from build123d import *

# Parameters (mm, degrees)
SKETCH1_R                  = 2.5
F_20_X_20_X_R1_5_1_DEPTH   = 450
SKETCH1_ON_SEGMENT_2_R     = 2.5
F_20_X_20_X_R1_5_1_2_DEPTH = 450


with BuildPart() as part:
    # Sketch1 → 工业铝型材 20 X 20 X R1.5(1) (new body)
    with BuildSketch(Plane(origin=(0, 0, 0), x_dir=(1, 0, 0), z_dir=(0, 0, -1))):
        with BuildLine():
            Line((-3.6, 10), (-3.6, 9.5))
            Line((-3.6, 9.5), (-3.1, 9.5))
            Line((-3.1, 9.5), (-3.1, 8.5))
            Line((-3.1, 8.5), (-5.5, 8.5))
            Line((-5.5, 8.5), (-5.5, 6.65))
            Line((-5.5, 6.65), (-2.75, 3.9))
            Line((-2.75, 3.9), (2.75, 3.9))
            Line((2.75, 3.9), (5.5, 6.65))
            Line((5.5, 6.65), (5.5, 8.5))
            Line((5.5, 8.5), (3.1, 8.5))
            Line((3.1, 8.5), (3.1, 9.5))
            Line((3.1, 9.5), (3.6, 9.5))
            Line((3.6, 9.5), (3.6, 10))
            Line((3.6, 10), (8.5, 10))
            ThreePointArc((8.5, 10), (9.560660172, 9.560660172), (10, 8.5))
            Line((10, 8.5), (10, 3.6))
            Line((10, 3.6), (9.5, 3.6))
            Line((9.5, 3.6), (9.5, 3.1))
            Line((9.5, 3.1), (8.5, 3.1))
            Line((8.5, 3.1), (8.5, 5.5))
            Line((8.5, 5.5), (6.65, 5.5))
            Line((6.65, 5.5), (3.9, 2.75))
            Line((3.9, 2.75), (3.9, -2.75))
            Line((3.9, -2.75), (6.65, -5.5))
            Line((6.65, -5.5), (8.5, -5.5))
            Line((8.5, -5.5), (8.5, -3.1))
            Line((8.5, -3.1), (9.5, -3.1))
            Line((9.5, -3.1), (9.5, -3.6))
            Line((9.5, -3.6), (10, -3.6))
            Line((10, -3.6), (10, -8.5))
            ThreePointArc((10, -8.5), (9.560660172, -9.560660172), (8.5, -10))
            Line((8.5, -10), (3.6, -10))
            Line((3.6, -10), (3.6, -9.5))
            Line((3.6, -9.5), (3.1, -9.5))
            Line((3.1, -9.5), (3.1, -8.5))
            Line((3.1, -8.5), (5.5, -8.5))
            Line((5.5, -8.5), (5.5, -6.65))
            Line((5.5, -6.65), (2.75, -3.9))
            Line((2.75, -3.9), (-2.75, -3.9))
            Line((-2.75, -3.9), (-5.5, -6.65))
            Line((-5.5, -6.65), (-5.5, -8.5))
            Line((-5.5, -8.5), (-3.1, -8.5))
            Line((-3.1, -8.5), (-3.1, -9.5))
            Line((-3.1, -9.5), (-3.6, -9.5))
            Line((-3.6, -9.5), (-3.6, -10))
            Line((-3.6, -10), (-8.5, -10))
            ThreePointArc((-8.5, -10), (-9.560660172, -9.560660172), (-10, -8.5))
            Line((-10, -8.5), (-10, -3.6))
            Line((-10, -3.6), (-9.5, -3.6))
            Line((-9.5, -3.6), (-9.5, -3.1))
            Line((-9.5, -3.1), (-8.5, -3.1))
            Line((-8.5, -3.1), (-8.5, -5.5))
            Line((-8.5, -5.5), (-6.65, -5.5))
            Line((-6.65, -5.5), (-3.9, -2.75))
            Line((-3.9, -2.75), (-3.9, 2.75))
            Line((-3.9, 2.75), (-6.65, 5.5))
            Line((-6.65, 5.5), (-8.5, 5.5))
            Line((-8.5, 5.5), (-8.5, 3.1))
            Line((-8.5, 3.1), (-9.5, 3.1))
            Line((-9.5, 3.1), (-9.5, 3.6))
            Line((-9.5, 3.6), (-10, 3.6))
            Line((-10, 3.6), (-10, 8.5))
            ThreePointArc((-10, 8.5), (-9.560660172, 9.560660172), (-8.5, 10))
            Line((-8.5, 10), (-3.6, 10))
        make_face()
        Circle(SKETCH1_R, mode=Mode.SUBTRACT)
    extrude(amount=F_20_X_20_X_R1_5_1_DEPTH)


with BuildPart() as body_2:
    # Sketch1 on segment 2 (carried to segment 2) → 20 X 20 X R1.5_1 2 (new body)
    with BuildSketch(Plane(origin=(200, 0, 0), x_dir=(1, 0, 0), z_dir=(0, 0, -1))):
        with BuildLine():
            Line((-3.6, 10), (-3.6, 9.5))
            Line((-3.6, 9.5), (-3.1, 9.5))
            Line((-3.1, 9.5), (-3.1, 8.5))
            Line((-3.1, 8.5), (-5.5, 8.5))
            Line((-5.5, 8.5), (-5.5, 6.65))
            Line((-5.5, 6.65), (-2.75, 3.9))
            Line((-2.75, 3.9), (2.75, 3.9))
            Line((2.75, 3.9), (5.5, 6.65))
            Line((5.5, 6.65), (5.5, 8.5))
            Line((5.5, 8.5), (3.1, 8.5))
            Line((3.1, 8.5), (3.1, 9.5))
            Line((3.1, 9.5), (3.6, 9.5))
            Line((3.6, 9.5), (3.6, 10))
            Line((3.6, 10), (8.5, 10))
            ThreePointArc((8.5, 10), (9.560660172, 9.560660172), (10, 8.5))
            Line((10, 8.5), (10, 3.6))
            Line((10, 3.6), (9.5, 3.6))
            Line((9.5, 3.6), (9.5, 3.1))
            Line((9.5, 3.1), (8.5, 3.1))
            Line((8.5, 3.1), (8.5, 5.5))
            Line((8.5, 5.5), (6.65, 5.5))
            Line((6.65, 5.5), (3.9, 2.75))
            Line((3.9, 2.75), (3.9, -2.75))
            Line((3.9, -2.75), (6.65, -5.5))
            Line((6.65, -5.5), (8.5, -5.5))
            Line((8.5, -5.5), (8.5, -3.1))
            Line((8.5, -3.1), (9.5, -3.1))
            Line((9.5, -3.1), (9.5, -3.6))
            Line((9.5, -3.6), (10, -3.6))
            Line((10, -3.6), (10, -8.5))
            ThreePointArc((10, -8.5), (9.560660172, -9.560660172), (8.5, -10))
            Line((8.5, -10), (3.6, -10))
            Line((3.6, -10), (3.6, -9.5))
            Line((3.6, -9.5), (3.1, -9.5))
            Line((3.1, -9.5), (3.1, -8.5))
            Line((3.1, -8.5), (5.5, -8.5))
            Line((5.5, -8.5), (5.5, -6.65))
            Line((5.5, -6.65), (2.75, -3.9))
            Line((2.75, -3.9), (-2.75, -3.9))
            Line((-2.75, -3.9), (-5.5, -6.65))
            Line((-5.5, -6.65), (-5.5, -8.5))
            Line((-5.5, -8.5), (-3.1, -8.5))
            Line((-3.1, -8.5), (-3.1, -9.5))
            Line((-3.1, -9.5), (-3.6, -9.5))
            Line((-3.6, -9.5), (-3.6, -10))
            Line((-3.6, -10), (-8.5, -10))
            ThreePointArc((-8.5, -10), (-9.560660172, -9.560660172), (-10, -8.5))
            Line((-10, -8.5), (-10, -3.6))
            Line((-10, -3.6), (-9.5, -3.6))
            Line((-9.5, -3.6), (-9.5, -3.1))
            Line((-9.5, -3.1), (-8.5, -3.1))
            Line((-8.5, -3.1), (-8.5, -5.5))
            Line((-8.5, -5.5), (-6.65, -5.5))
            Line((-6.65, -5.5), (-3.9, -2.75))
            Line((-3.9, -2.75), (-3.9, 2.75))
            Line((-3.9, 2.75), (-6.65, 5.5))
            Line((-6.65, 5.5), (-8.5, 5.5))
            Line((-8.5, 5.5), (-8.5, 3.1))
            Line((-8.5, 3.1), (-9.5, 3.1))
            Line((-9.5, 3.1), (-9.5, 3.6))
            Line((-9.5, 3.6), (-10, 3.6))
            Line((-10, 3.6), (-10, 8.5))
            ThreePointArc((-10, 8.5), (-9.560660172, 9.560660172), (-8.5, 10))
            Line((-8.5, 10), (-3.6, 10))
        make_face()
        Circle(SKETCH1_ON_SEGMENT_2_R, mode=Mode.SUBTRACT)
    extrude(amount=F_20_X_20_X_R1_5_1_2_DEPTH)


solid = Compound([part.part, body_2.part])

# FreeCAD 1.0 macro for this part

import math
import FreeCAD as App
import Part
import Sketcher

doc = App.newDocument("Part")
params = doc.addObject("Spreadsheet::Sheet", "Params")
for row, (alias, value) in enumerate([
    ("sketch1_diameter", "5 mm"),
    ("sketch1_radius", "1.5 mm"),
    ("sketch1_width", "1 mm"),
    ("sketch1_width2", "4.9 mm"),
    ("sketch1_width3", "2.4 mm"),
    ("pad1_length", "450 mm"),
    ("sketch2_diameter", "5 mm"),
    ("sketch2_radius", "1.5 mm"),
    ("sketch2_width", "1 mm"),
    ("sketch2_width2", "4.9 mm"),
    ("sketch2_width3", "2.4 mm"),
    ("pad2_length", "450 mm"),
], start=1):
    params.set(f"A{row}", alias)
    params.set(f"B{row}", "=" + value)
    params.setAlias(f"B{row}", alias)

body = doc.addObject("PartDesign::Body", "Body")

# Sketch on XY plane
sketch1 = body.newObject("Sketcher::SketchObject", "Sketch")
sketch1.AttachmentSupport = (doc.getObject("XY_Plane"), [""])
sketch1.MapMode = "FlatFace"
sketch1.addGeometry(Part.LineSegment(App.Vector(-3.6, -9.5, 0), App.Vector(-3.6, -10, 0)), False)
sketch1.addGeometry(Part.LineSegment(App.Vector(-3.6, -10, 0), App.Vector(-8.5, -10, 0)), False)
sketch1.addGeometry(Part.ArcOfCircle(Part.Circle(App.Vector(-8.5, -8.5, 0), App.Vector(0, 0, 1), 1.5), math.radians(180), math.radians(270)), False)
sketch1.addGeometry(Part.LineSegment(App.Vector(-10, -8.5, 0), App.Vector(-10, -3.6, 0)), False)
sketch1.addGeometry(Part.LineSegment(App.Vector(-10, -3.6, 0), App.Vector(-9.5, -3.6, 0)), False)
sketch1.addGeometry(Part.LineSegment(App.Vector(-9.5, -3.6, 0), App.Vector(-9.5, -3.1, 0)), False)
sketch1.addGeometry(Part.LineSegment(App.Vector(-9.5, -3.1, 0), App.Vector(-8.5, -3.1, 0)), False)
sketch1.addGeometry(Part.LineSegment(App.Vector(-8.5, -3.1, 0), App.Vector(-8.5, -5.5, 0)), False)
sketch1.addGeometry(Part.LineSegment(App.Vector(-8.5, -5.5, 0), App.Vector(-6.65, -5.5, 0)), False)
sketch1.addGeometry(Part.LineSegment(App.Vector(-6.65, -5.5, 0), App.Vector(-3.9, -2.75, 0)), False)
sketch1.addGeometry(Part.LineSegment(App.Vector(-3.9, -2.75, 0), App.Vector(-3.9, 2.75, 0)), False)
sketch1.addGeometry(Part.LineSegment(App.Vector(-3.9, 2.75, 0), App.Vector(-6.65, 5.5, 0)), False)
sketch1.addGeometry(Part.LineSegment(App.Vector(-6.65, 5.5, 0), App.Vector(-8.5, 5.5, 0)), False)
sketch1.addGeometry(Part.LineSegment(App.Vector(-8.5, 5.5, 0), App.Vector(-8.5, 3.1, 0)), False)
sketch1.addGeometry(Part.LineSegment(App.Vector(-8.5, 3.1, 0), App.Vector(-9.5, 3.1, 0)), False)
sketch1.addGeometry(Part.LineSegment(App.Vector(-9.5, 3.1, 0), App.Vector(-9.5, 3.6, 0)), False)
sketch1.addGeometry(Part.LineSegment(App.Vector(-9.5, 3.6, 0), App.Vector(-10, 3.6, 0)), False)
sketch1.addGeometry(Part.LineSegment(App.Vector(-10, 3.6, 0), App.Vector(-10, 8.5, 0)), False)
sketch1.addGeometry(Part.ArcOfCircle(Part.Circle(App.Vector(-8.5, 8.5, 0), App.Vector(0, 0, 1), 1.5), math.radians(90), math.radians(180)), False)
sketch1.addGeometry(Part.LineSegment(App.Vector(-8.5, 10, 0), App.Vector(-3.6, 10, 0)), False)
sketch1.addGeometry(Part.LineSegment(App.Vector(-3.6, 10, 0), App.Vector(-3.6, 9.5, 0)), False)
sketch1.addGeometry(Part.LineSegment(App.Vector(-3.6, 9.5, 0), App.Vector(-3.1, 9.5, 0)), False)
sketch1.addGeometry(Part.LineSegment(App.Vector(-3.1, 9.5, 0), App.Vector(-3.1, 8.5, 0)), False)
sketch1.addGeometry(Part.LineSegment(App.Vector(-3.1, 8.5, 0), App.Vector(-5.5, 8.5, 0)), False)
sketch1.addGeometry(Part.LineSegment(App.Vector(-5.5, 8.5, 0), App.Vector(-5.5, 6.65, 0)), False)
sketch1.addGeometry(Part.LineSegment(App.Vector(-5.5, 6.65, 0), App.Vector(-2.75, 3.9, 0)), False)
sketch1.addGeometry(Part.LineSegment(App.Vector(-2.75, 3.9, 0), App.Vector(2.75, 3.9, 0)), False)
sketch1.addGeometry(Part.LineSegment(App.Vector(2.75, 3.9, 0), App.Vector(5.5, 6.65, 0)), False)
sketch1.addGeometry(Part.LineSegment(App.Vector(5.5, 6.65, 0), App.Vector(5.5, 8.5, 0)), False)
sketch1.addGeometry(Part.LineSegment(App.Vector(5.5, 8.5, 0), App.Vector(3.1, 8.5, 0)), False)
sketch1.addGeometry(Part.LineSegment(App.Vector(3.1, 8.5, 0), App.Vector(3.1, 9.5, 0)), False)
sketch1.addGeometry(Part.LineSegment(App.Vector(3.1, 9.5, 0), App.Vector(3.6, 9.5, 0)), False)
sketch1.addGeometry(Part.LineSegment(App.Vector(3.6, 9.5, 0), App.Vector(3.6, 10, 0)), False)
sketch1.addGeometry(Part.LineSegment(App.Vector(3.6, 10, 0), App.Vector(8.5, 10, 0)), False)
sketch1.addGeometry(Part.ArcOfCircle(Part.Circle(App.Vector(8.5, 8.5, 0), App.Vector(0, 0, 1), 1.5), math.radians(0), math.radians(90)), False)
sketch1.addGeometry(Part.LineSegment(App.Vector(10, 8.5, 0), App.Vector(10, 3.6, 0)), False)
sketch1.addGeometry(Part.LineSegment(App.Vector(10, 3.6, 0), App.Vector(9.5, 3.6, 0)), False)
sketch1.addGeometry(Part.LineSegment(App.Vector(9.5, 3.6, 0), App.Vector(9.5, 3.1, 0)), False)
sketch1.addGeometry(Part.LineSegment(App.Vector(9.5, 3.1, 0), App.Vector(8.5, 3.1, 0)), False)
sketch1.addGeometry(Part.LineSegment(App.Vector(8.5, 3.1, 0), App.Vector(8.5, 5.5, 0)), False)
sketch1.addGeometry(Part.LineSegment(App.Vector(8.5, 5.5, 0), App.Vector(6.65, 5.5, 0)), False)
sketch1.addGeometry(Part.LineSegment(App.Vector(6.65, 5.5, 0), App.Vector(3.9, 2.75, 0)), False)
sketch1.addGeometry(Part.LineSegment(App.Vector(3.9, 2.75, 0), App.Vector(3.9, -2.75, 0)), False)
sketch1.addGeometry(Part.LineSegment(App.Vector(3.9, -2.75, 0), App.Vector(6.65, -5.5, 0)), False)
sketch1.addGeometry(Part.LineSegment(App.Vector(6.65, -5.5, 0), App.Vector(8.5, -5.5, 0)), False)
sketch1.addGeometry(Part.LineSegment(App.Vector(8.5, -5.5, 0), App.Vector(8.5, -3.1, 0)), False)
sketch1.addGeometry(Part.LineSegment(App.Vector(8.5, -3.1, 0), App.Vector(9.5, -3.1, 0)), False)
sketch1.addGeometry(Part.LineSegment(App.Vector(9.5, -3.1, 0), App.Vector(9.5, -3.6, 0)), False)
sketch1.addGeometry(Part.LineSegment(App.Vector(9.5, -3.6, 0), App.Vector(10, -3.6, 0)), False)
sketch1.addGeometry(Part.LineSegment(App.Vector(10, -3.6, 0), App.Vector(10, -8.5, 0)), False)
sketch1.addGeometry(Part.ArcOfCircle(Part.Circle(App.Vector(8.5, -8.5, 0), App.Vector(0, 0, 1), 1.5), math.radians(-90), math.radians(0)), False)
sketch1.addGeometry(Part.LineSegment(App.Vector(8.5, -10, 0), App.Vector(3.6, -10, 0)), False)
sketch1.addGeometry(Part.LineSegment(App.Vector(3.6, -10, 0), App.Vector(3.6, -9.5, 0)), False)
sketch1.addGeometry(Part.LineSegment(App.Vector(3.6, -9.5, 0), App.Vector(3.1, -9.5, 0)), False)
sketch1.addGeometry(Part.LineSegment(App.Vector(3.1, -9.5, 0), App.Vector(3.1, -8.5, 0)), False)
sketch1.addGeometry(Part.LineSegment(App.Vector(3.1, -8.5, 0), App.Vector(5.5, -8.5, 0)), False)
sketch1.addGeometry(Part.LineSegment(App.Vector(5.5, -8.5, 0), App.Vector(5.5, -6.65, 0)), False)
sketch1.addGeometry(Part.LineSegment(App.Vector(5.5, -6.65, 0), App.Vector(2.75, -3.9, 0)), False)
sketch1.addGeometry(Part.LineSegment(App.Vector(2.75, -3.9, 0), App.Vector(-2.75, -3.9, 0)), False)
sketch1.addGeometry(Part.LineSegment(App.Vector(-2.75, -3.9, 0), App.Vector(-5.5, -6.65, 0)), False)
sketch1.addGeometry(Part.LineSegment(App.Vector(-5.5, -6.65, 0), App.Vector(-5.5, -8.5, 0)), False)
sketch1.addGeometry(Part.LineSegment(App.Vector(-5.5, -8.5, 0), App.Vector(-3.1, -8.5, 0)), False)
sketch1.addGeometry(Part.LineSegment(App.Vector(-3.1, -8.5, 0), App.Vector(-3.1, -9.5, 0)), False)
sketch1.addGeometry(Part.LineSegment(App.Vector(-3.1, -9.5, 0), App.Vector(-3.6, -9.5, 0)), False)
sketch1.addGeometry(Part.Circle(App.Vector(0, 0, 0), App.Vector(0, 0, 1), 2.5), False)
sketch1.addConstraint(Sketcher.Constraint("Coincident", 0, 2, 1, 1))
sketch1.addConstraint(Sketcher.Constraint("Tangent", 1, 2, 2, 2))
sketch1.addConstraint(Sketcher.Constraint("Tangent", 2, 1, 3, 1))
sketch1.addConstraint(Sketcher.Constraint("Coincident", 3, 2, 4, 1))
sketch1.addConstraint(Sketcher.Constraint("Coincident", 4, 2, 5, 1))
sketch1.addConstraint(Sketcher.Constraint("Coincident", 5, 2, 6, 1))
sketch1.addConstraint(Sketcher.Constraint("Coincident", 6, 2, 7, 1))
sketch1.addConstraint(Sketcher.Constraint("Coincident", 7, 2, 8, 1))
sketch1.addConstraint(Sketcher.Constraint("Coincident", 8, 2, 9, 1))
sketch1.addConstraint(Sketcher.Constraint("Coincident", 9, 2, 10, 1))
sketch1.addConstraint(Sketcher.Constraint("Coincident", 10, 2, 11, 1))
sketch1.addConstraint(Sketcher.Constraint("Coincident", 11, 2, 12, 1))
sketch1.addConstraint(Sketcher.Constraint("Coincident", 12, 2, 13, 1))
sketch1.addConstraint(Sketcher.Constraint("Coincident", 13, 2, 14, 1))
sketch1.addConstraint(Sketcher.Constraint("Coincident", 14, 2, 15, 1))
sketch1.addConstraint(Sketcher.Constraint("Coincident", 15, 2, 16, 1))
sketch1.addConstraint(Sketcher.Constraint("Coincident", 16, 2, 17, 1))
sketch1.addConstraint(Sketcher.Constraint("Tangent", 17, 2, 18, 2))
sketch1.addConstraint(Sketcher.Constraint("Tangent", 18, 1, 19, 1))
sketch1.addConstraint(Sketcher.Constraint("Coincident", 19, 2, 20, 1))
sketch1.addConstraint(Sketcher.Constraint("Coincident", 20, 2, 21, 1))
sketch1.addConstraint(Sketcher.Constraint("Coincident", 21, 2, 22, 1))
sketch1.addConstraint(Sketcher.Constraint("Coincident", 22, 2, 23, 1))
sketch1.addConstraint(Sketcher.Constraint("Coincident", 23, 2, 24, 1))
sketch1.addConstraint(Sketcher.Constraint("Coincident", 24, 2, 25, 1))
sketch1.addConstraint(Sketcher.Constraint("Coincident", 25, 2, 26, 1))
sketch1.addConstraint(Sketcher.Constraint("Coincident", 26, 2, 27, 1))
sketch1.addConstraint(Sketcher.Constraint("Coincident", 27, 2, 28, 1))
sketch1.addConstraint(Sketcher.Constraint("Coincident", 28, 2, 29, 1))
sketch1.addConstraint(Sketcher.Constraint("Coincident", 29, 2, 30, 1))
sketch1.addConstraint(Sketcher.Constraint("Coincident", 30, 2, 31, 1))
sketch1.addConstraint(Sketcher.Constraint("Coincident", 31, 2, 32, 1))
sketch1.addConstraint(Sketcher.Constraint("Coincident", 32, 2, 33, 1))
sketch1.addConstraint(Sketcher.Constraint("Tangent", 33, 2, 34, 2))
sketch1.addConstraint(Sketcher.Constraint("Tangent", 34, 1, 35, 1))
sketch1.addConstraint(Sketcher.Constraint("Coincident", 35, 2, 36, 1))
sketch1.addConstraint(Sketcher.Constraint("Coincident", 36, 2, 37, 1))
sketch1.addConstraint(Sketcher.Constraint("Coincident", 37, 2, 38, 1))
sketch1.addConstraint(Sketcher.Constraint("Coincident", 38, 2, 39, 1))
sketch1.addConstraint(Sketcher.Constraint("Coincident", 39, 2, 40, 1))
sketch1.addConstraint(Sketcher.Constraint("Coincident", 40, 2, 41, 1))
sketch1.addConstraint(Sketcher.Constraint("Coincident", 41, 2, 42, 1))
sketch1.addConstraint(Sketcher.Constraint("Coincident", 42, 2, 43, 1))
sketch1.addConstraint(Sketcher.Constraint("Coincident", 43, 2, 44, 1))
sketch1.addConstraint(Sketcher.Constraint("Coincident", 44, 2, 45, 1))
sketch1.addConstraint(Sketcher.Constraint("Coincident", 45, 2, 46, 1))
sketch1.addConstraint(Sketcher.Constraint("Coincident", 46, 2, 47, 1))
sketch1.addConstraint(Sketcher.Constraint("Coincident", 47, 2, 48, 1))
sketch1.addConstraint(Sketcher.Constraint("Coincident", 48, 2, 49, 1))
sketch1.addConstraint(Sketcher.Constraint("Tangent", 49, 2, 50, 2))
sketch1.addConstraint(Sketcher.Constraint("Tangent", 50, 1, 51, 1))
sketch1.addConstraint(Sketcher.Constraint("Coincident", 51, 2, 52, 1))
sketch1.addConstraint(Sketcher.Constraint("Coincident", 52, 2, 53, 1))
sketch1.addConstraint(Sketcher.Constraint("Coincident", 53, 2, 54, 1))
sketch1.addConstraint(Sketcher.Constraint("Coincident", 54, 2, 55, 1))
sketch1.addConstraint(Sketcher.Constraint("Coincident", 55, 2, 56, 1))
sketch1.addConstraint(Sketcher.Constraint("Coincident", 56, 2, 57, 1))
sketch1.addConstraint(Sketcher.Constraint("Coincident", 57, 2, 58, 1))
sketch1.addConstraint(Sketcher.Constraint("Coincident", 58, 2, 59, 1))
sketch1.addConstraint(Sketcher.Constraint("Coincident", 59, 2, 60, 1))
sketch1.addConstraint(Sketcher.Constraint("Coincident", 60, 2, 61, 1))
sketch1.addConstraint(Sketcher.Constraint("Coincident", 61, 2, 62, 1))
sketch1.addConstraint(Sketcher.Constraint("Coincident", 62, 2, 63, 1))
sketch1.addConstraint(Sketcher.Constraint("Coincident", 63, 2, 0, 1))
sketch1.addConstraint(Sketcher.Constraint("Vertical", 0))
sketch1.addConstraint(Sketcher.Constraint("Horizontal", 1))
sketch1.addConstraint(Sketcher.Constraint("Vertical", 3))
sketch1.addConstraint(Sketcher.Constraint("Horizontal", 4))
sketch1.addConstraint(Sketcher.Constraint("Vertical", 5))
sketch1.addConstraint(Sketcher.Constraint("Horizontal", 6))
sketch1.addConstraint(Sketcher.Constraint("Vertical", 7))
sketch1.addConstraint(Sketcher.Constraint("Horizontal", 8))
sketch1.addConstraint(Sketcher.Constraint("Vertical", 10))
sketch1.addConstraint(Sketcher.Constraint("Horizontal", 12))
sketch1.addConstraint(Sketcher.Constraint("Vertical", 13))
sketch1.addConstraint(Sketcher.Constraint("Horizontal", 14))
sketch1.addConstraint(Sketcher.Constraint("Vertical", 15))
sketch1.addConstraint(Sketcher.Constraint("Horizontal", 16))
sketch1.addConstraint(Sketcher.Constraint("Vertical", 17))
sketch1.addConstraint(Sketcher.Constraint("Horizontal", 19))
sketch1.addConstraint(Sketcher.Constraint("Vertical", 20))
sketch1.addConstraint(Sketcher.Constraint("Horizontal", 21))
sketch1.addConstraint(Sketcher.Constraint("Vertical", 22))
sketch1.addConstraint(Sketcher.Constraint("Horizontal", 23))
sketch1.addConstraint(Sketcher.Constraint("Vertical", 24))
sketch1.addConstraint(Sketcher.Constraint("Horizontal", 26))
sketch1.addConstraint(Sketcher.Constraint("Vertical", 28))
sketch1.addConstraint(Sketcher.Constraint("Horizontal", 29))
sketch1.addConstraint(Sketcher.Constraint("Vertical", 30))
sketch1.addConstraint(Sketcher.Constraint("Horizontal", 31))
sketch1.addConstraint(Sketcher.Constraint("Vertical", 32))
sketch1.addConstraint(Sketcher.Constraint("Horizontal", 33))
sketch1.addConstraint(Sketcher.Constraint("Vertical", 35))
sketch1.addConstraint(Sketcher.Constraint("Horizontal", 36))
sketch1.addConstraint(Sketcher.Constraint("Vertical", 37))
sketch1.addConstraint(Sketcher.Constraint("Horizontal", 38))
sketch1.addConstraint(Sketcher.Constraint("Vertical", 39))
sketch1.addConstraint(Sketcher.Constraint("Horizontal", 40))
sketch1.addConstraint(Sketcher.Constraint("Vertical", 42))
sketch1.addConstraint(Sketcher.Constraint("Horizontal", 44))
sketch1.addConstraint(Sketcher.Constraint("Vertical", 45))
sketch1.addConstraint(Sketcher.Constraint("Horizontal", 46))
sketch1.addConstraint(Sketcher.Constraint("Vertical", 47))
sketch1.addConstraint(Sketcher.Constraint("Horizontal", 48))
sketch1.addConstraint(Sketcher.Constraint("Vertical", 49))
sketch1.addConstraint(Sketcher.Constraint("Horizontal", 51))
sketch1.addConstraint(Sketcher.Constraint("Vertical", 52))
sketch1.addConstraint(Sketcher.Constraint("Horizontal", 53))
sketch1.addConstraint(Sketcher.Constraint("Vertical", 54))
sketch1.addConstraint(Sketcher.Constraint("Horizontal", 55))
sketch1.addConstraint(Sketcher.Constraint("Vertical", 56))
sketch1.addConstraint(Sketcher.Constraint("Horizontal", 58))
sketch1.addConstraint(Sketcher.Constraint("Vertical", 60))
sketch1.addConstraint(Sketcher.Constraint("Horizontal", 61))
sketch1.addConstraint(Sketcher.Constraint("Vertical", 62))
sketch1.addConstraint(Sketcher.Constraint("Horizontal", 63))
sketch1.addConstraint(Sketcher.Constraint("Coincident", 64, 3, -1, 1))
sketch1.addConstraint(Sketcher.Constraint("Equal", 2, 18))
sketch1.addConstraint(Sketcher.Constraint("Equal", 18, 34))
sketch1.addConstraint(Sketcher.Constraint("Equal", 34, 50))
sketch1.addConstraint(Sketcher.Constraint("Symmetric", 2, 3, 34, 3, -1, 1))
sketch1.addConstraint(Sketcher.Constraint("Symmetric", 18, 3, 50, 3, -1, 1))
sketch1.addConstraint(Sketcher.Constraint("Symmetric", 4, 2, 36, 2, -1, 1))
sketch1.addConstraint(Sketcher.Constraint("Symmetric", 6, 2, 38, 2, -1, 1))
sketch1.addConstraint(Sketcher.Constraint("Symmetric", 8, 2, 40, 2, -1, 1))
sketch1.addConstraint(Sketcher.Constraint("Symmetric", 9, 2, 41, 2, -1, 1))
sketch1.addConstraint(Sketcher.Constraint("Symmetric", 11, 2, 43, 2, -1, 1))
sketch1.addConstraint(Sketcher.Constraint("Symmetric", 13, 2, 45, 2, -1, 1))
sketch1.addConstraint(Sketcher.Constraint("Symmetric", 15, 2, 47, 2, -1, 1))
sketch1.addConstraint(Sketcher.Constraint("Symmetric", 20, 2, 52, 2, -1, 1))
sketch1.addConstraint(Sketcher.Constraint("Symmetric", 22, 2, 54, 2, -1, 1))
sketch1.addConstraint(Sketcher.Constraint("Symmetric", 24, 2, 56, 2, -1, 1))
sketch1.addConstraint(Sketcher.Constraint("Symmetric", 25, 2, 57, 2, -1, 1))
sketch1.addConstraint(Sketcher.Constraint("Symmetric", 27, 2, 59, 2, -1, 1))
sketch1.addConstraint(Sketcher.Constraint("Symmetric", 29, 2, 61, 2, -1, 1))
sketch1.addConstraint(Sketcher.Constraint("Symmetric", 31, 2, 63, 2, -1, 1))
sketch1.addConstraint(Sketcher.Constraint("Symmetric", 18, 3, 34, 3, -2))
sketch1.addConstraint(Sketcher.Constraint("Symmetric", 24, 2, 27, 2, -2))
sketch1.addConstraint(Sketcher.Constraint("Symmetric", 22, 2, 29, 2, -2))
sketch1.addConstraint(Sketcher.Constraint("Symmetric", 20, 2, 31, 2, -2))
sketch1.addConstraint(Sketcher.Constraint("Symmetric", 15, 2, 36, 2, -2))
sketch1.addConstraint(Sketcher.Constraint("Symmetric", 13, 2, 38, 2, -2))
sketch1.addConstraint(Sketcher.Constraint("Symmetric", 11, 2, 40, 2, -2))
sketch1.addConstraint(Sketcher.Constraint("Perpendicular", 9, 11))
sketch1.addConstraint(Sketcher.Constraint("Parallel", 11, 25))
sketch1.addConstraint(Sketcher.Constraint("Perpendicular", 25, 27))
sketch1.addConstraint(Sketcher.Constraint("Perpendicular", 41, 43))
sketch1.addConstraint(Sketcher.Constraint("Perpendicular", 57, 59))
sketch1.addConstraint(Sketcher.Constraint("Horizontal", 17, 2, 22, 2))
sketch1.addConstraint(Sketcher.Constraint("Horizontal", 10, 2, 41, 2))
sketch1.addConstraint(Sketcher.Constraint("Vertical", 1, 2, 6, 2))
sketch1.addConstraint(Sketcher.Constraint("Equal", 16, 21))
sketch1.addConstraint(Sketcher.Constraint("Equal", 63, 0))
sketch1.addConstraint(Sketcher.Constraint("Equal", 51, 3))
sketch1.addConstraint(Sketcher.Constraint("Equal", 0, 5))
sketch1.addConstraint(Sketcher.Constraint("Equal", 61, 7))
sketch1.addConstraint(Sketcher.Constraint("Equal", 58, 10))
sketch1.addConstraint(Sketcher.Constraint("Equal", 44, 24))
sketch1.addConstraint(Sketcher.Constraint("Equal", 11, 25))
sketch1.addConstraint(Sketcher.Constraint("Diameter", 64, 5.0))
sketch1.addConstraint(Sketcher.Constraint("Radius", 2, 1.5))
sketch1.addConstraint(Sketcher.Constraint("DistanceX", 6, 1, 6, 2, 1.0))
sketch1.addConstraint(Sketcher.Constraint("DistanceX", 1, 2, 1, 1, 4.9))
sketch1.addConstraint(Sketcher.Constraint("DistanceX", 23, 2, 23, 1, 2.4))
sketch1.addConstraint(Sketcher.Constraint("DistanceX", 26, 1, 26, 2, 5.5))
sketch1.addConstraint(Sketcher.Constraint("DistanceY", 0, 2, -1, 1, 10.0))
sketch1.addConstraint(Sketcher.Constraint("DistanceX", 8, 1, 8, 2, 1.85))
sketch1.setExpression("Constraints[159]", "Params.sketch1_diameter")
sketch1.setExpression("Constraints[160]", "Params.sketch1_radius")
sketch1.setExpression("Constraints[161]", "Params.sketch1_width")
sketch1.setExpression("Constraints[162]", "Params.sketch1_width2")
sketch1.setExpression("Constraints[163]", "Params.sketch1_width3")
pad1 = body.newObject("PartDesign::Pad", "Pad")
pad1.Profile = sketch1
pad1.setExpression("Length", "Params.pad1_length")
pad1.Reversed = True
body2 = doc.addObject("PartDesign::Body", "Body001")

# Sketch on XY plane
sketch2 = body2.newObject("Sketcher::SketchObject", "Sketch001")
sketch2.AttachmentSupport = (doc.getObject("XY_Plane001"), [""])
sketch2.MapMode = "FlatFace"
sketch2.addGeometry(Part.LineSegment(App.Vector(196.4, -9.5, 0), App.Vector(196.4, -10, 0)), False)
sketch2.addGeometry(Part.LineSegment(App.Vector(196.4, -10, 0), App.Vector(191.5, -10, 0)), False)
sketch2.addGeometry(Part.ArcOfCircle(Part.Circle(App.Vector(191.5, -8.5, 0), App.Vector(0, 0, 1), 1.5), math.radians(180), math.radians(270)), False)
sketch2.addGeometry(Part.LineSegment(App.Vector(190, -8.5, 0), App.Vector(190, -3.6, 0)), False)
sketch2.addGeometry(Part.LineSegment(App.Vector(190, -3.6, 0), App.Vector(190.5, -3.6, 0)), False)
sketch2.addGeometry(Part.LineSegment(App.Vector(190.5, -3.6, 0), App.Vector(190.5, -3.1, 0)), False)
sketch2.addGeometry(Part.LineSegment(App.Vector(190.5, -3.1, 0), App.Vector(191.5, -3.1, 0)), False)
sketch2.addGeometry(Part.LineSegment(App.Vector(191.5, -3.1, 0), App.Vector(191.5, -5.5, 0)), False)
sketch2.addGeometry(Part.LineSegment(App.Vector(191.5, -5.5, 0), App.Vector(193.35, -5.5, 0)), False)
sketch2.addGeometry(Part.LineSegment(App.Vector(193.35, -5.5, 0), App.Vector(196.1, -2.75, 0)), False)
sketch2.addGeometry(Part.LineSegment(App.Vector(196.1, -2.75, 0), App.Vector(196.1, 2.75, 0)), False)
sketch2.addGeometry(Part.LineSegment(App.Vector(196.1, 2.75, 0), App.Vector(193.35, 5.5, 0)), False)
sketch2.addGeometry(Part.LineSegment(App.Vector(193.35, 5.5, 0), App.Vector(191.5, 5.5, 0)), False)
sketch2.addGeometry(Part.LineSegment(App.Vector(191.5, 5.5, 0), App.Vector(191.5, 3.1, 0)), False)
sketch2.addGeometry(Part.LineSegment(App.Vector(191.5, 3.1, 0), App.Vector(190.5, 3.1, 0)), False)
sketch2.addGeometry(Part.LineSegment(App.Vector(190.5, 3.1, 0), App.Vector(190.5, 3.6, 0)), False)
sketch2.addGeometry(Part.LineSegment(App.Vector(190.5, 3.6, 0), App.Vector(190, 3.6, 0)), False)
sketch2.addGeometry(Part.LineSegment(App.Vector(190, 3.6, 0), App.Vector(190, 8.5, 0)), False)
sketch2.addGeometry(Part.ArcOfCircle(Part.Circle(App.Vector(191.5, 8.5, 0), App.Vector(0, 0, 1), 1.5), math.radians(90), math.radians(180)), False)
sketch2.addGeometry(Part.LineSegment(App.Vector(191.5, 10, 0), App.Vector(196.4, 10, 0)), False)
sketch2.addGeometry(Part.LineSegment(App.Vector(196.4, 10, 0), App.Vector(196.4, 9.5, 0)), False)
sketch2.addGeometry(Part.LineSegment(App.Vector(196.4, 9.5, 0), App.Vector(196.9, 9.5, 0)), False)
sketch2.addGeometry(Part.LineSegment(App.Vector(196.9, 9.5, 0), App.Vector(196.9, 8.5, 0)), False)
sketch2.addGeometry(Part.LineSegment(App.Vector(196.9, 8.5, 0), App.Vector(194.5, 8.5, 0)), False)
sketch2.addGeometry(Part.LineSegment(App.Vector(194.5, 8.5, 0), App.Vector(194.5, 6.65, 0)), False)
sketch2.addGeometry(Part.LineSegment(App.Vector(194.5, 6.65, 0), App.Vector(197.25, 3.9, 0)), False)
sketch2.addGeometry(Part.LineSegment(App.Vector(197.25, 3.9, 0), App.Vector(202.75, 3.9, 0)), False)
sketch2.addGeometry(Part.LineSegment(App.Vector(202.75, 3.9, 0), App.Vector(205.5, 6.65, 0)), False)
sketch2.addGeometry(Part.LineSegment(App.Vector(205.5, 6.65, 0), App.Vector(205.5, 8.5, 0)), False)
sketch2.addGeometry(Part.LineSegment(App.Vector(205.5, 8.5, 0), App.Vector(203.1, 8.5, 0)), False)
sketch2.addGeometry(Part.LineSegment(App.Vector(203.1, 8.5, 0), App.Vector(203.1, 9.5, 0)), False)
sketch2.addGeometry(Part.LineSegment(App.Vector(203.1, 9.5, 0), App.Vector(203.6, 9.5, 0)), False)
sketch2.addGeometry(Part.LineSegment(App.Vector(203.6, 9.5, 0), App.Vector(203.6, 10, 0)), False)
sketch2.addGeometry(Part.LineSegment(App.Vector(203.6, 10, 0), App.Vector(208.5, 10, 0)), False)
sketch2.addGeometry(Part.ArcOfCircle(Part.Circle(App.Vector(208.5, 8.5, 0), App.Vector(0, 0, 1), 1.5), math.radians(0), math.radians(90)), False)
sketch2.addGeometry(Part.LineSegment(App.Vector(210, 8.5, 0), App.Vector(210, 3.6, 0)), False)
sketch2.addGeometry(Part.LineSegment(App.Vector(210, 3.6, 0), App.Vector(209.5, 3.6, 0)), False)
sketch2.addGeometry(Part.LineSegment(App.Vector(209.5, 3.6, 0), App.Vector(209.5, 3.1, 0)), False)
sketch2.addGeometry(Part.LineSegment(App.Vector(209.5, 3.1, 0), App.Vector(208.5, 3.1, 0)), False)
sketch2.addGeometry(Part.LineSegment(App.Vector(208.5, 3.1, 0), App.Vector(208.5, 5.5, 0)), False)
sketch2.addGeometry(Part.LineSegment(App.Vector(208.5, 5.5, 0), App.Vector(206.65, 5.5, 0)), False)
sketch2.addGeometry(Part.LineSegment(App.Vector(206.65, 5.5, 0), App.Vector(203.9, 2.75, 0)), False)
sketch2.addGeometry(Part.LineSegment(App.Vector(203.9, 2.75, 0), App.Vector(203.9, -2.75, 0)), False)
sketch2.addGeometry(Part.LineSegment(App.Vector(203.9, -2.75, 0), App.Vector(206.65, -5.5, 0)), False)
sketch2.addGeometry(Part.LineSegment(App.Vector(206.65, -5.5, 0), App.Vector(208.5, -5.5, 0)), False)
sketch2.addGeometry(Part.LineSegment(App.Vector(208.5, -5.5, 0), App.Vector(208.5, -3.1, 0)), False)
sketch2.addGeometry(Part.LineSegment(App.Vector(208.5, -3.1, 0), App.Vector(209.5, -3.1, 0)), False)
sketch2.addGeometry(Part.LineSegment(App.Vector(209.5, -3.1, 0), App.Vector(209.5, -3.6, 0)), False)
sketch2.addGeometry(Part.LineSegment(App.Vector(209.5, -3.6, 0), App.Vector(210, -3.6, 0)), False)
sketch2.addGeometry(Part.LineSegment(App.Vector(210, -3.6, 0), App.Vector(210, -8.5, 0)), False)
sketch2.addGeometry(Part.ArcOfCircle(Part.Circle(App.Vector(208.5, -8.5, 0), App.Vector(0, 0, 1), 1.5), math.radians(-90), math.radians(0)), False)
sketch2.addGeometry(Part.LineSegment(App.Vector(208.5, -10, 0), App.Vector(203.6, -10, 0)), False)
sketch2.addGeometry(Part.LineSegment(App.Vector(203.6, -10, 0), App.Vector(203.6, -9.5, 0)), False)
sketch2.addGeometry(Part.LineSegment(App.Vector(203.6, -9.5, 0), App.Vector(203.1, -9.5, 0)), False)
sketch2.addGeometry(Part.LineSegment(App.Vector(203.1, -9.5, 0), App.Vector(203.1, -8.5, 0)), False)
sketch2.addGeometry(Part.LineSegment(App.Vector(203.1, -8.5, 0), App.Vector(205.5, -8.5, 0)), False)
sketch2.addGeometry(Part.LineSegment(App.Vector(205.5, -8.5, 0), App.Vector(205.5, -6.65, 0)), False)
sketch2.addGeometry(Part.LineSegment(App.Vector(205.5, -6.65, 0), App.Vector(202.75, -3.9, 0)), False)
sketch2.addGeometry(Part.LineSegment(App.Vector(202.75, -3.9, 0), App.Vector(197.25, -3.9, 0)), False)
sketch2.addGeometry(Part.LineSegment(App.Vector(197.25, -3.9, 0), App.Vector(194.5, -6.65, 0)), False)
sketch2.addGeometry(Part.LineSegment(App.Vector(194.5, -6.65, 0), App.Vector(194.5, -8.5, 0)), False)
sketch2.addGeometry(Part.LineSegment(App.Vector(194.5, -8.5, 0), App.Vector(196.9, -8.5, 0)), False)
sketch2.addGeometry(Part.LineSegment(App.Vector(196.9, -8.5, 0), App.Vector(196.9, -9.5, 0)), False)
sketch2.addGeometry(Part.LineSegment(App.Vector(196.9, -9.5, 0), App.Vector(196.4, -9.5, 0)), False)
sketch2.addGeometry(Part.Circle(App.Vector(200, 0, 0), App.Vector(0, 0, 1), 2.5), False)
sketch2.addConstraint(Sketcher.Constraint("Coincident", 0, 2, 1, 1))
sketch2.addConstraint(Sketcher.Constraint("Tangent", 1, 2, 2, 2))
sketch2.addConstraint(Sketcher.Constraint("Tangent", 2, 1, 3, 1))
sketch2.addConstraint(Sketcher.Constraint("Coincident", 3, 2, 4, 1))
sketch2.addConstraint(Sketcher.Constraint("Coincident", 4, 2, 5, 1))
sketch2.addConstraint(Sketcher.Constraint("Coincident", 5, 2, 6, 1))
sketch2.addConstraint(Sketcher.Constraint("Coincident", 6, 2, 7, 1))
sketch2.addConstraint(Sketcher.Constraint("Coincident", 7, 2, 8, 1))
sketch2.addConstraint(Sketcher.Constraint("Coincident", 8, 2, 9, 1))
sketch2.addConstraint(Sketcher.Constraint("Coincident", 9, 2, 10, 1))
sketch2.addConstraint(Sketcher.Constraint("Coincident", 10, 2, 11, 1))
sketch2.addConstraint(Sketcher.Constraint("Coincident", 11, 2, 12, 1))
sketch2.addConstraint(Sketcher.Constraint("Coincident", 12, 2, 13, 1))
sketch2.addConstraint(Sketcher.Constraint("Coincident", 13, 2, 14, 1))
sketch2.addConstraint(Sketcher.Constraint("Coincident", 14, 2, 15, 1))
sketch2.addConstraint(Sketcher.Constraint("Coincident", 15, 2, 16, 1))
sketch2.addConstraint(Sketcher.Constraint("Coincident", 16, 2, 17, 1))
sketch2.addConstraint(Sketcher.Constraint("Tangent", 17, 2, 18, 2))
sketch2.addConstraint(Sketcher.Constraint("Tangent", 18, 1, 19, 1))
sketch2.addConstraint(Sketcher.Constraint("Coincident", 19, 2, 20, 1))
sketch2.addConstraint(Sketcher.Constraint("Coincident", 20, 2, 21, 1))
sketch2.addConstraint(Sketcher.Constraint("Coincident", 21, 2, 22, 1))
sketch2.addConstraint(Sketcher.Constraint("Coincident", 22, 2, 23, 1))
sketch2.addConstraint(Sketcher.Constraint("Coincident", 23, 2, 24, 1))
sketch2.addConstraint(Sketcher.Constraint("Coincident", 24, 2, 25, 1))
sketch2.addConstraint(Sketcher.Constraint("Coincident", 25, 2, 26, 1))
sketch2.addConstraint(Sketcher.Constraint("Coincident", 26, 2, 27, 1))
sketch2.addConstraint(Sketcher.Constraint("Coincident", 27, 2, 28, 1))
sketch2.addConstraint(Sketcher.Constraint("Coincident", 28, 2, 29, 1))
sketch2.addConstraint(Sketcher.Constraint("Coincident", 29, 2, 30, 1))
sketch2.addConstraint(Sketcher.Constraint("Coincident", 30, 2, 31, 1))
sketch2.addConstraint(Sketcher.Constraint("Coincident", 31, 2, 32, 1))
sketch2.addConstraint(Sketcher.Constraint("Coincident", 32, 2, 33, 1))
sketch2.addConstraint(Sketcher.Constraint("Tangent", 33, 2, 34, 2))
sketch2.addConstraint(Sketcher.Constraint("Tangent", 34, 1, 35, 1))
sketch2.addConstraint(Sketcher.Constraint("Coincident", 35, 2, 36, 1))
sketch2.addConstraint(Sketcher.Constraint("Coincident", 36, 2, 37, 1))
sketch2.addConstraint(Sketcher.Constraint("Coincident", 37, 2, 38, 1))
sketch2.addConstraint(Sketcher.Constraint("Coincident", 38, 2, 39, 1))
sketch2.addConstraint(Sketcher.Constraint("Coincident", 39, 2, 40, 1))
sketch2.addConstraint(Sketcher.Constraint("Coincident", 40, 2, 41, 1))
sketch2.addConstraint(Sketcher.Constraint("Coincident", 41, 2, 42, 1))
sketch2.addConstraint(Sketcher.Constraint("Coincident", 42, 2, 43, 1))
sketch2.addConstraint(Sketcher.Constraint("Coincident", 43, 2, 44, 1))
sketch2.addConstraint(Sketcher.Constraint("Coincident", 44, 2, 45, 1))
sketch2.addConstraint(Sketcher.Constraint("Coincident", 45, 2, 46, 1))
sketch2.addConstraint(Sketcher.Constraint("Coincident", 46, 2, 47, 1))
sketch2.addConstraint(Sketcher.Constraint("Coincident", 47, 2, 48, 1))
sketch2.addConstraint(Sketcher.Constraint("Coincident", 48, 2, 49, 1))
sketch2.addConstraint(Sketcher.Constraint("Tangent", 49, 2, 50, 2))
sketch2.addConstraint(Sketcher.Constraint("Tangent", 50, 1, 51, 1))
sketch2.addConstraint(Sketcher.Constraint("Coincident", 51, 2, 52, 1))
sketch2.addConstraint(Sketcher.Constraint("Coincident", 52, 2, 53, 1))
sketch2.addConstraint(Sketcher.Constraint("Coincident", 53, 2, 54, 1))
sketch2.addConstraint(Sketcher.Constraint("Coincident", 54, 2, 55, 1))
sketch2.addConstraint(Sketcher.Constraint("Coincident", 55, 2, 56, 1))
sketch2.addConstraint(Sketcher.Constraint("Coincident", 56, 2, 57, 1))
sketch2.addConstraint(Sketcher.Constraint("Coincident", 57, 2, 58, 1))
sketch2.addConstraint(Sketcher.Constraint("Coincident", 58, 2, 59, 1))
sketch2.addConstraint(Sketcher.Constraint("Coincident", 59, 2, 60, 1))
sketch2.addConstraint(Sketcher.Constraint("Coincident", 60, 2, 61, 1))
sketch2.addConstraint(Sketcher.Constraint("Coincident", 61, 2, 62, 1))
sketch2.addConstraint(Sketcher.Constraint("Coincident", 62, 2, 63, 1))
sketch2.addConstraint(Sketcher.Constraint("Coincident", 63, 2, 0, 1))
sketch2.addConstraint(Sketcher.Constraint("Vertical", 0))
sketch2.addConstraint(Sketcher.Constraint("Horizontal", 1))
sketch2.addConstraint(Sketcher.Constraint("Vertical", 3))
sketch2.addConstraint(Sketcher.Constraint("Horizontal", 4))
sketch2.addConstraint(Sketcher.Constraint("Vertical", 5))
sketch2.addConstraint(Sketcher.Constraint("Horizontal", 6))
sketch2.addConstraint(Sketcher.Constraint("Vertical", 7))
sketch2.addConstraint(Sketcher.Constraint("Horizontal", 8))
sketch2.addConstraint(Sketcher.Constraint("Vertical", 10))
sketch2.addConstraint(Sketcher.Constraint("Horizontal", 12))
sketch2.addConstraint(Sketcher.Constraint("Vertical", 13))
sketch2.addConstraint(Sketcher.Constraint("Horizontal", 14))
sketch2.addConstraint(Sketcher.Constraint("Vertical", 15))
sketch2.addConstraint(Sketcher.Constraint("Horizontal", 16))
sketch2.addConstraint(Sketcher.Constraint("Vertical", 17))
sketch2.addConstraint(Sketcher.Constraint("Horizontal", 19))
sketch2.addConstraint(Sketcher.Constraint("Vertical", 20))
sketch2.addConstraint(Sketcher.Constraint("Horizontal", 21))
sketch2.addConstraint(Sketcher.Constraint("Vertical", 22))
sketch2.addConstraint(Sketcher.Constraint("Horizontal", 23))
sketch2.addConstraint(Sketcher.Constraint("Vertical", 24))
sketch2.addConstraint(Sketcher.Constraint("Horizontal", 26))
sketch2.addConstraint(Sketcher.Constraint("Vertical", 28))
sketch2.addConstraint(Sketcher.Constraint("Horizontal", 29))
sketch2.addConstraint(Sketcher.Constraint("Vertical", 30))
sketch2.addConstraint(Sketcher.Constraint("Horizontal", 31))
sketch2.addConstraint(Sketcher.Constraint("Vertical", 32))
sketch2.addConstraint(Sketcher.Constraint("Horizontal", 33))
sketch2.addConstraint(Sketcher.Constraint("Vertical", 35))
sketch2.addConstraint(Sketcher.Constraint("Horizontal", 36))
sketch2.addConstraint(Sketcher.Constraint("Vertical", 37))
sketch2.addConstraint(Sketcher.Constraint("Horizontal", 38))
sketch2.addConstraint(Sketcher.Constraint("Vertical", 39))
sketch2.addConstraint(Sketcher.Constraint("Horizontal", 40))
sketch2.addConstraint(Sketcher.Constraint("Vertical", 42))
sketch2.addConstraint(Sketcher.Constraint("Horizontal", 44))
sketch2.addConstraint(Sketcher.Constraint("Vertical", 45))
sketch2.addConstraint(Sketcher.Constraint("Horizontal", 46))
sketch2.addConstraint(Sketcher.Constraint("Vertical", 47))
sketch2.addConstraint(Sketcher.Constraint("Horizontal", 48))
sketch2.addConstraint(Sketcher.Constraint("Vertical", 49))
sketch2.addConstraint(Sketcher.Constraint("Horizontal", 51))
sketch2.addConstraint(Sketcher.Constraint("Vertical", 52))
sketch2.addConstraint(Sketcher.Constraint("Horizontal", 53))
sketch2.addConstraint(Sketcher.Constraint("Vertical", 54))
sketch2.addConstraint(Sketcher.Constraint("Horizontal", 55))
sketch2.addConstraint(Sketcher.Constraint("Vertical", 56))
sketch2.addConstraint(Sketcher.Constraint("Horizontal", 58))
sketch2.addConstraint(Sketcher.Constraint("Vertical", 60))
sketch2.addConstraint(Sketcher.Constraint("Horizontal", 61))
sketch2.addConstraint(Sketcher.Constraint("Vertical", 62))
sketch2.addConstraint(Sketcher.Constraint("Horizontal", 63))
sketch2.addConstraint(Sketcher.Constraint("Equal", 2, 18))
sketch2.addConstraint(Sketcher.Constraint("Equal", 18, 34))
sketch2.addConstraint(Sketcher.Constraint("Equal", 34, 50))
sketch2.addConstraint(Sketcher.Constraint("Symmetric", 2, 3, 18, 3, -1))
sketch2.addConstraint(Sketcher.Constraint("Symmetric", 34, 3, 50, 3, -1))
sketch2.addConstraint(Sketcher.Constraint("Symmetric", 8, 2, 11, 2, -1))
sketch2.addConstraint(Sketcher.Constraint("Symmetric", 6, 2, 13, 2, -1))
sketch2.addConstraint(Sketcher.Constraint("Symmetric", 4, 2, 15, 2, -1))
sketch2.addConstraint(Sketcher.Constraint("Symmetric", 40, 2, 43, 2, -1))
sketch2.addConstraint(Sketcher.Constraint("Symmetric", 38, 2, 45, 2, -1))
sketch2.addConstraint(Sketcher.Constraint("Symmetric", 36, 2, 47, 2, -1))
sketch2.addConstraint(Sketcher.Constraint("Symmetric", 31, 2, 52, 2, -1))
sketch2.addConstraint(Sketcher.Constraint("Symmetric", 29, 2, 54, 2, -1))
sketch2.addConstraint(Sketcher.Constraint("Symmetric", 27, 2, 56, 2, -1))
sketch2.addConstraint(Sketcher.Constraint("Symmetric", 26, 2, 57, 2, -1))
sketch2.addConstraint(Sketcher.Constraint("Symmetric", 24, 2, 59, 2, -1))
sketch2.addConstraint(Sketcher.Constraint("Symmetric", 22, 2, 61, 2, -1))
sketch2.addConstraint(Sketcher.Constraint("Symmetric", 20, 2, 63, 2, -1))
sketch2.addConstraint(Sketcher.Constraint("PointOnObject", 64, 3, -1))
sketch2.addConstraint(Sketcher.Constraint("Perpendicular", 9, 11))
sketch2.addConstraint(Sketcher.Constraint("Parallel", 11, 25))
sketch2.addConstraint(Sketcher.Constraint("Perpendicular", 25, 27))
sketch2.addConstraint(Sketcher.Constraint("Parallel", 27, 41))
sketch2.addConstraint(Sketcher.Constraint("Perpendicular", 41, 43))
sketch2.addConstraint(Sketcher.Constraint("Parallel", 43, 57))
sketch2.addConstraint(Sketcher.Constraint("Perpendicular", 57, 59))
sketch2.addConstraint(Sketcher.Constraint("Horizontal", 18, 3, 34, 3))
sketch2.addConstraint(Sketcher.Constraint("Horizontal", 17, 2, 22, 2))
sketch2.addConstraint(Sketcher.Constraint("Horizontal", 24, 2, 27, 2))
sketch2.addConstraint(Sketcher.Constraint("Horizontal", 23, 2, 28, 2))
sketch2.addConstraint(Sketcher.Constraint("Horizontal", 21, 2, 30, 2))
sketch2.addConstraint(Sketcher.Constraint("Horizontal", 16, 2, 35, 2))
sketch2.addConstraint(Sketcher.Constraint("Horizontal", 14, 2, 37, 2))
sketch2.addConstraint(Sketcher.Constraint("Horizontal", 12, 2, 39, 2))
sketch2.addConstraint(Sketcher.Constraint("Horizontal", 10, 2, 41, 2))
sketch2.addConstraint(Sketcher.Constraint("Vertical", 1, 2, 6, 2))
sketch2.addConstraint(Sketcher.Constraint("Vertical", 33, 2, 38, 2))
sketch2.addConstraint(Sketcher.Constraint("Equal", 16, 21))
sketch2.addConstraint(Sketcher.Constraint("Equal", 23, 29))
sketch2.addConstraint(Sketcher.Constraint("Equal", 21, 31))
sketch2.addConstraint(Sketcher.Constraint("Equal", 19, 33))
sketch2.addConstraint(Sketcher.Constraint("Equal", 31, 36))
sketch2.addConstraint(Sketcher.Constraint("Equal", 12, 40))
sketch2.addConstraint(Sketcher.Constraint("Equal", 63, 0))
sketch2.addConstraint(Sketcher.Constraint("Equal", 51, 3))
sketch2.addConstraint(Sketcher.Constraint("Equal", 0, 5))
sketch2.addConstraint(Sketcher.Constraint("Equal", 61, 7))
sketch2.addConstraint(Sketcher.Constraint("Equal", 58, 10))
sketch2.addConstraint(Sketcher.Constraint("Equal", 44, 24))
sketch2.addConstraint(Sketcher.Constraint("Equal", 11, 25))
sketch2.addConstraint(Sketcher.Constraint("Diameter", 64, 5.0))
sketch2.addConstraint(Sketcher.Constraint("Radius", 2, 1.5))
sketch2.addConstraint(Sketcher.Constraint("DistanceX", 6, 1, 6, 2, 1.0))
sketch2.addConstraint(Sketcher.Constraint("DistanceX", 1, 2, 1, 1, 4.9))
sketch2.addConstraint(Sketcher.Constraint("DistanceX", 23, 2, 23, 1, 2.4))
sketch2.addConstraint(Sketcher.Constraint("DistanceX", 26, 1, 26, 2, 5.5))
sketch2.addConstraint(Sketcher.Constraint("DistanceX", -1, 1, 64, 3, 200.0))
sketch2.addConstraint(Sketcher.Constraint("DistanceY", 0, 2, -1, 1, 10.0))
sketch2.addConstraint(Sketcher.Constraint("DistanceX", -1, 1, 2, 1, 190.0))
sketch2.addConstraint(Sketcher.Constraint("DistanceX", 8, 1, 8, 2, 1.85))
sketch2.setExpression("Constraints[166]", "Params.sketch2_diameter")
sketch2.setExpression("Constraints[167]", "Params.sketch2_radius")
sketch2.setExpression("Constraints[168]", "Params.sketch2_width")
sketch2.setExpression("Constraints[169]", "Params.sketch2_width2")
sketch2.setExpression("Constraints[170]", "Params.sketch2_width3")
pad2 = body2.newObject("PartDesign::Pad", "Pad001")
pad2.Profile = sketch2
pad2.setExpression("Length", "Params.pad2_length")
pad2.Reversed = True

doc.recompute()
